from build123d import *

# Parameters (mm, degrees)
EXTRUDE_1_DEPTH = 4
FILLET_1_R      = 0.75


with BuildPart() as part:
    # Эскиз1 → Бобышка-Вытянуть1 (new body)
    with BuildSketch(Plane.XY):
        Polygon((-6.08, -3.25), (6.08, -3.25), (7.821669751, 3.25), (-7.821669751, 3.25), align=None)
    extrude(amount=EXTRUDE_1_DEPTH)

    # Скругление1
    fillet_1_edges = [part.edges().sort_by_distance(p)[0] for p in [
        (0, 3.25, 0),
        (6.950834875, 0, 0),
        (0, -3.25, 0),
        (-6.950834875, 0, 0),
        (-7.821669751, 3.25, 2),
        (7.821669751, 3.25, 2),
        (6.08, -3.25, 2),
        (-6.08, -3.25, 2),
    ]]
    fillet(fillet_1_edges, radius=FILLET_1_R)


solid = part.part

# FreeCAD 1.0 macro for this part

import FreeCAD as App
import Part
import Sketcher

V = App.Vector
Q = App.Units.Quantity


def edges_at(feature, points):
    """Names of the edges that pass closest to the given points."""
    edges = feature.Shape.Edges
    near = lambda p: min(range(len(edges)), key=lambda i: edges[i].distToShape(Part.Vertex(*p))[0])
    return sorted({f"Edge{near(p) + 1}" for p in points})


def add_polygon(sketch, points):
    """Adds a closed chain of lines whose ends are joined by coincident constraints."""
    first, n = sketch.GeometryCount, len(points)
    for a, b in zip(points, points[1:] + points[:1]):
        sketch.addGeometry(Part.LineSegment(App.Vector(*a, 0), App.Vector(*b, 0)), False)
    for i in range(n):
        sketch.addConstraint(Sketcher.Constraint("Coincident", first + i, 2, first + (i + 1) % n, 1))

doc = App.newDocument("Part")
body = doc.addObject("PartDesign::Body", "Body")

sketch1 = body.newObject("Sketcher::SketchObject", "Sketch")
sketch1.AttachmentSupport = (doc.getObject("XY_Plane"), [""])
sketch1.MapMode = "FlatFace"
add_polygon(sketch1, [(-6, -3), (6, -3), (8, 3), (-8, 3)])
sketch1.addConstraint(Sketcher.Constraint("Horizontal", 0))
sketch1.addConstraint(Sketcher.Constraint("Horizontal", 2))
sketch1.addConstraint(Sketcher.Constraint("Equal", 1, 3))
sketch1.addConstraint(Sketcher.Constraint("Angle", 1, Q("75 deg")))
sketch1.addConstraint(Sketcher.Constraint("DistanceX", 0, 1, 0, 2, 12.16))
sketch1.addConstraint(Sketcher.Constraint("DistanceY", 0, 2, 1, 2, 6.5))
sketch1.addConstraint(Sketcher.Constraint("DistanceX", -1, 1, 0, 2, 6.08))
sketch1.addConstraint(Sketcher.Constraint("DistanceY", 0, 2, -1, 1, 3.25))
pad1 = body.newObject("PartDesign::Pad", "Pad")
pad1.Profile = sketch1
pad1.Length = 4
doc.recompute()

fillet = body.newObject("PartDesign::Fillet", "Fillet")
fillet.Base = (pad1, edges_at(pad1, [
    (0, 3.25, 0),
    (6.951, 0, 0),
    (0, -3.25, 0),
    (-6.951, 0, 0),
    (-7.822, 3.25, 2),
    (7.822, 3.25, 2),
    (6.08, -3.25, 2),
    (-6.08, -3.25, 2),
]))
fillet.Radius = 0.75

doc.recompute()
